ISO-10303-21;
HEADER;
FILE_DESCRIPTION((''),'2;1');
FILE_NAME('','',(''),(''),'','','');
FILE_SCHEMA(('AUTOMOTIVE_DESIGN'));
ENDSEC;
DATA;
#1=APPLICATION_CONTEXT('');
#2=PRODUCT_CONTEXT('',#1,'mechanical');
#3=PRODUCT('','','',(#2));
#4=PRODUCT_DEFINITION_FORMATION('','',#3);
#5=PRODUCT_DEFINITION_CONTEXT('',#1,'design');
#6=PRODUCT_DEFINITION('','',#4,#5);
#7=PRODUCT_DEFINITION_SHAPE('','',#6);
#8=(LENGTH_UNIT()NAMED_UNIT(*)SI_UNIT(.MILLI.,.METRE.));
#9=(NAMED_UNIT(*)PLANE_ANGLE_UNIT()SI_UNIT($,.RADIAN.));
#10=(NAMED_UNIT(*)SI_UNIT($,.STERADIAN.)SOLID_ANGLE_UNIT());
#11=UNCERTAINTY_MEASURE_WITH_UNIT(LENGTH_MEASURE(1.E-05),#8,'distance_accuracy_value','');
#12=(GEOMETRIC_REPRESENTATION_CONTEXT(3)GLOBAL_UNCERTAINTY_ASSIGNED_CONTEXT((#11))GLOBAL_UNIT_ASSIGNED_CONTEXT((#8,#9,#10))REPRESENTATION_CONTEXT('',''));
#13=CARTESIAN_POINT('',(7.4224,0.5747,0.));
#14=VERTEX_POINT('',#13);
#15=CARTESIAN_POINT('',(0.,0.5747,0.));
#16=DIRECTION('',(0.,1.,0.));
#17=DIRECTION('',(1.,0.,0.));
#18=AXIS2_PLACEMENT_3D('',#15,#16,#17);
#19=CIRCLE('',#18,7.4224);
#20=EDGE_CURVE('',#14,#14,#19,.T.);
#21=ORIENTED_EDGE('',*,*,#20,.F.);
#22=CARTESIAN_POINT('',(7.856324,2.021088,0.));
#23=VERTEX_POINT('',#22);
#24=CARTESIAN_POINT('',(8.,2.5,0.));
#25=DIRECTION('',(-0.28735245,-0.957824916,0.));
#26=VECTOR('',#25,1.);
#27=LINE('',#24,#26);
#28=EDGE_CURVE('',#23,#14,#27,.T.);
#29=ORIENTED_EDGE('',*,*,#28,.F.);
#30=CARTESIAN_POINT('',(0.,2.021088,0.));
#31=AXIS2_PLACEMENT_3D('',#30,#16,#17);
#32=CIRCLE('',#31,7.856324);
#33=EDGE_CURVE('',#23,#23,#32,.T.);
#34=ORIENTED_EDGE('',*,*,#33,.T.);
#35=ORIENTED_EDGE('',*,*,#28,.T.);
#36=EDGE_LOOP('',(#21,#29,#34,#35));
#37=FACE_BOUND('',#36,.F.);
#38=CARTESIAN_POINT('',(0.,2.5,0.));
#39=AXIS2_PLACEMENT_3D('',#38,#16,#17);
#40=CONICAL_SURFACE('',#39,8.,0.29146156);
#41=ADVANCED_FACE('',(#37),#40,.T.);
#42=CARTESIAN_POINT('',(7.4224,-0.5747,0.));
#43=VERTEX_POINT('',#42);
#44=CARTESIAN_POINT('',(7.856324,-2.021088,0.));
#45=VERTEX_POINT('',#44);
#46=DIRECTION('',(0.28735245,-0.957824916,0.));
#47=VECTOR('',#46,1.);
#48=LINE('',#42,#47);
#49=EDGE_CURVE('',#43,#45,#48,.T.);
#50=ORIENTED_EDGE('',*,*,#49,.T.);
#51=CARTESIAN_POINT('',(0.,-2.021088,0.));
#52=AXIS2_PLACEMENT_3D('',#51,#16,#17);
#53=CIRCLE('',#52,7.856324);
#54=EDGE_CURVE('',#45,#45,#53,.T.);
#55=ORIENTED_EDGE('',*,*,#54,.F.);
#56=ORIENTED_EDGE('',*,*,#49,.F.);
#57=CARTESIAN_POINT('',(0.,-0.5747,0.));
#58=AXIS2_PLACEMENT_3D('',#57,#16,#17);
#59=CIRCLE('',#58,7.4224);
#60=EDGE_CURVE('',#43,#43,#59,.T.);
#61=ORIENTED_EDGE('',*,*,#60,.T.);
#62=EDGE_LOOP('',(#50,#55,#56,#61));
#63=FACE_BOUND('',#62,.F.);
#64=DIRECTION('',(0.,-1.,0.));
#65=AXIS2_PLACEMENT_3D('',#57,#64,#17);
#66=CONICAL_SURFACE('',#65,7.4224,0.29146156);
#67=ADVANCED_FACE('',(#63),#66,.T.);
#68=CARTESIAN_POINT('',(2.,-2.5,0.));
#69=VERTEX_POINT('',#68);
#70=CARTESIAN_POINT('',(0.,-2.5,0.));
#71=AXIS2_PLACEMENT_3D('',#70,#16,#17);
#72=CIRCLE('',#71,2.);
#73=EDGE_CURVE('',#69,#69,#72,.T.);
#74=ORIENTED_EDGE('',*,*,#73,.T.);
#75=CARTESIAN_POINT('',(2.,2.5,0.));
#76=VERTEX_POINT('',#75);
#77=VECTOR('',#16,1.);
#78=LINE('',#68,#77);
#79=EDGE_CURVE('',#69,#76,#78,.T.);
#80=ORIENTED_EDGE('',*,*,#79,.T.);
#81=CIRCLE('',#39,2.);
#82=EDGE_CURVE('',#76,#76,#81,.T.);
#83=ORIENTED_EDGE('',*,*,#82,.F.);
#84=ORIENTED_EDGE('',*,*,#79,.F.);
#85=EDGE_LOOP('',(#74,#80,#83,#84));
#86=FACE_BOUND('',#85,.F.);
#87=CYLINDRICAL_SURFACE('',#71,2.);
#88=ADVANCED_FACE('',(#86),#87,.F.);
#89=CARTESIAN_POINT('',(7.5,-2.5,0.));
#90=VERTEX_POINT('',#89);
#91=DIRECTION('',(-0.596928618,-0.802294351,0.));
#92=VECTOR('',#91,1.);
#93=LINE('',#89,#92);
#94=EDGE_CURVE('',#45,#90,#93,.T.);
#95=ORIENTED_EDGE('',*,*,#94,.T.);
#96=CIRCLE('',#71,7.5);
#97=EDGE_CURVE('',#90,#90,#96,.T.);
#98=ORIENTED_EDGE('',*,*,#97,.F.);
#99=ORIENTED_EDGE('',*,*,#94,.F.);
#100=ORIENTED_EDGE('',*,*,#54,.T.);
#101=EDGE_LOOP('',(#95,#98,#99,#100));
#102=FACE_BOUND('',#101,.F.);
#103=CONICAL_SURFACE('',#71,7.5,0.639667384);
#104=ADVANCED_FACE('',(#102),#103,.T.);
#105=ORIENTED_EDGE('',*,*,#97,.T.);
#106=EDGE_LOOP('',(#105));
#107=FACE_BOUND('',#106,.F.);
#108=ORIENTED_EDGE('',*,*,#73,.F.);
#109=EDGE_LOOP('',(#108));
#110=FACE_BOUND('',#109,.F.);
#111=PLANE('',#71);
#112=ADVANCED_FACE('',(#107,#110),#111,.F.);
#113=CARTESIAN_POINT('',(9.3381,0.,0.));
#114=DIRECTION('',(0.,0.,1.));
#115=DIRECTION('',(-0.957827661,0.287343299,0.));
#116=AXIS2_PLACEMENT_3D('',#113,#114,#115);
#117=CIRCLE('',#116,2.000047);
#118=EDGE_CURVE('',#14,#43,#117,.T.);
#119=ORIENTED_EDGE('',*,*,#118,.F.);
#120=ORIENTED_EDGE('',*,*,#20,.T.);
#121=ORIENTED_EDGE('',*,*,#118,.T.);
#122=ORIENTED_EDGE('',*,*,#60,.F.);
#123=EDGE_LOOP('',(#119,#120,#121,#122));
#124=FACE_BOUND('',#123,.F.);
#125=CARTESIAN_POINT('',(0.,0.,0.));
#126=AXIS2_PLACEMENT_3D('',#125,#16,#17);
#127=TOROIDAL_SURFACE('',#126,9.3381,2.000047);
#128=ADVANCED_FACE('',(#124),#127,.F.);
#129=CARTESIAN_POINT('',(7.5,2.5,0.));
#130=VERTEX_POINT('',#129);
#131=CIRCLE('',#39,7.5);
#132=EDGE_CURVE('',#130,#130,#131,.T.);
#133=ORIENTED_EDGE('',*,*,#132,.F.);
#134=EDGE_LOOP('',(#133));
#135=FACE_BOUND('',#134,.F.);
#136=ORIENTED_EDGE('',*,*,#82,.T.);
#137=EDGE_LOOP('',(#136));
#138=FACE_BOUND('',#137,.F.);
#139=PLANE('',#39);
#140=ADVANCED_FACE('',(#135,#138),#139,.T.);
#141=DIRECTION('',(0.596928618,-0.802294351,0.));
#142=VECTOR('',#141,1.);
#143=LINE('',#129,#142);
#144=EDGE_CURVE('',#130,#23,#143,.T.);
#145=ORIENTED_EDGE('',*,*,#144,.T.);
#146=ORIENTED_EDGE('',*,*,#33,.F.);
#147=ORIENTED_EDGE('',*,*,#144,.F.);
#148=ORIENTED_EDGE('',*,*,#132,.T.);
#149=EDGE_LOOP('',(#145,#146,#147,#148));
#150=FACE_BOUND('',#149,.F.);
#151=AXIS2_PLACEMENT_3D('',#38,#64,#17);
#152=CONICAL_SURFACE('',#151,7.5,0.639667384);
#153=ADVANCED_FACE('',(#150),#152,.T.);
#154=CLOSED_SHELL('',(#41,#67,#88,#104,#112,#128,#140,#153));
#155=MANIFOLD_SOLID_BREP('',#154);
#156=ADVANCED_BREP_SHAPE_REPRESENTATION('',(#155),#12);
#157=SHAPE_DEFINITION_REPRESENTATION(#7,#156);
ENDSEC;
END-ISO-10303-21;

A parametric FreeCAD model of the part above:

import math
import FreeCAD as App
import Part
import Sketcher
Q = App.Units.Quantity


def edges_at(feature, points):
    """Names of the edges that pass closest to the given points."""
    edges = feature.Shape.Edges
    near = lambda p: min(range(len(edges)), key=lambda i: edges[i].distToShape(Part.Vertex(*p))[0])
    return sorted({f"Edge{near(p) + 1}" for p in points})

doc = App.newDocument("Part")
params = doc.addObject("Spreadsheet::Sheet", "Params")
for row, (alias, value) in enumerate([
    ("sketch1_radius", "2 mm"),
    ("sketch1_height", "5 mm"),
    ("sketch1_width", "6 mm"),
    ("revolution_angle", "360 deg"),
    ("chamfer_size", "0.5 mm"),
], start=1):
    params.set(f"A{row}", alias)
    params.set(f"B{row}", "=" + value)
    params.setAlias(f"B{row}", alias)

body = doc.addObject("PartDesign::Body", "Body")

# Sketch on XY plane
sketch1 = body.newObject("Sketcher::SketchObject", "Sketch")
sketch1.AttachmentSupport = (doc.getObject("XY_Plane"), [""])
sketch1.MapMode = "FlatFace"
sketch1.addGeometry([
    Part.LineSegment(App.Vector(2, 2.5, 0), App.Vector(2, -2.5, 0)),  # 0
    Part.LineSegment(App.Vector(2, -2.5, 0), App.Vector(8, -2.5, 0)),  # 1
    Part.LineSegment(App.Vector(8, -2.5, 0), App.Vector(7.4, -0.6, 0)),  # 2
    Part.ArcOfCircle(Part.Circle(App.Vector(9.3, 0, 0), App.Vector(0, 0, 1), 2), math.radians(163), math.radians(197)),  # 3
    Part.LineSegment(App.Vector(7.4, 0.6, 0), App.Vector(8, 2.5, 0)),  # 4
    Part.LineSegment(App.Vector(8, 2.5, 0), App.Vector(2, 2.5, 0)),  # 5
], False)
sketch1.addConstraint([
    Sketcher.Constraint("Coincident", 0, 2, 1, 1),
    Sketcher.Constraint("Coincident", 1, 2, 2, 1),
    Sketcher.Constraint("Tangent", 2, 2, 3, 2),
    Sketcher.Constraint("Tangent", 3, 1, 4, 1),
    Sketcher.Constraint("Coincident", 4, 2, 5, 1),
    Sketcher.Constraint("Coincident", 5, 2, 0, 1),
    Sketcher.Constraint("Vertical", 0),
    Sketcher.Constraint("Horizontal", 1),
    Sketcher.Constraint("Horizontal", 5),
    Sketcher.Constraint("Symmetric", 2, 2, 3, 1, -1),
    Sketcher.Constraint("Vertical", 1, 2, 4, 2),
    Sketcher.Constraint("Radius", 3, Q("2 mm")),
    Sketcher.Constraint("DistanceY", 0, 2, 0, 1, Q("5 mm")),
    Sketcher.Constraint("DistanceX", -1, 1, 0, 2, Q("2 mm")),
    Sketcher.Constraint("DistanceX", 1, 1, 1, 2, Q("6 mm")),
    Sketcher.Constraint("Angle", 2, Q("106.6995 deg")),
])
sketch1.setExpression("Constraints[11]", "Params.sketch1_radius")
sketch1.setExpression("Constraints[12]", "Params.sketch1_height")
sketch1.setExpression("Constraints[14]", "Params.sketch1_width")
revolution = body.newObject("PartDesign::Revolution", "Revolution")
revolution.Profile = sketch1
revolution.ReferenceAxis = (sketch1, ["V_Axis"])
revolution.setExpression("Angle", "Params.revolution_angle")
doc.recompute()

chamfer = body.newObject("PartDesign::Chamfer", "Chamfer")
chamfer.Base = (revolution, edges_at(revolution, [(-8, 2.5, 0), (-8, -2.5, 0)]))
chamfer.setExpression("Size", "Params.chamfer_size")

doc.recompute()
